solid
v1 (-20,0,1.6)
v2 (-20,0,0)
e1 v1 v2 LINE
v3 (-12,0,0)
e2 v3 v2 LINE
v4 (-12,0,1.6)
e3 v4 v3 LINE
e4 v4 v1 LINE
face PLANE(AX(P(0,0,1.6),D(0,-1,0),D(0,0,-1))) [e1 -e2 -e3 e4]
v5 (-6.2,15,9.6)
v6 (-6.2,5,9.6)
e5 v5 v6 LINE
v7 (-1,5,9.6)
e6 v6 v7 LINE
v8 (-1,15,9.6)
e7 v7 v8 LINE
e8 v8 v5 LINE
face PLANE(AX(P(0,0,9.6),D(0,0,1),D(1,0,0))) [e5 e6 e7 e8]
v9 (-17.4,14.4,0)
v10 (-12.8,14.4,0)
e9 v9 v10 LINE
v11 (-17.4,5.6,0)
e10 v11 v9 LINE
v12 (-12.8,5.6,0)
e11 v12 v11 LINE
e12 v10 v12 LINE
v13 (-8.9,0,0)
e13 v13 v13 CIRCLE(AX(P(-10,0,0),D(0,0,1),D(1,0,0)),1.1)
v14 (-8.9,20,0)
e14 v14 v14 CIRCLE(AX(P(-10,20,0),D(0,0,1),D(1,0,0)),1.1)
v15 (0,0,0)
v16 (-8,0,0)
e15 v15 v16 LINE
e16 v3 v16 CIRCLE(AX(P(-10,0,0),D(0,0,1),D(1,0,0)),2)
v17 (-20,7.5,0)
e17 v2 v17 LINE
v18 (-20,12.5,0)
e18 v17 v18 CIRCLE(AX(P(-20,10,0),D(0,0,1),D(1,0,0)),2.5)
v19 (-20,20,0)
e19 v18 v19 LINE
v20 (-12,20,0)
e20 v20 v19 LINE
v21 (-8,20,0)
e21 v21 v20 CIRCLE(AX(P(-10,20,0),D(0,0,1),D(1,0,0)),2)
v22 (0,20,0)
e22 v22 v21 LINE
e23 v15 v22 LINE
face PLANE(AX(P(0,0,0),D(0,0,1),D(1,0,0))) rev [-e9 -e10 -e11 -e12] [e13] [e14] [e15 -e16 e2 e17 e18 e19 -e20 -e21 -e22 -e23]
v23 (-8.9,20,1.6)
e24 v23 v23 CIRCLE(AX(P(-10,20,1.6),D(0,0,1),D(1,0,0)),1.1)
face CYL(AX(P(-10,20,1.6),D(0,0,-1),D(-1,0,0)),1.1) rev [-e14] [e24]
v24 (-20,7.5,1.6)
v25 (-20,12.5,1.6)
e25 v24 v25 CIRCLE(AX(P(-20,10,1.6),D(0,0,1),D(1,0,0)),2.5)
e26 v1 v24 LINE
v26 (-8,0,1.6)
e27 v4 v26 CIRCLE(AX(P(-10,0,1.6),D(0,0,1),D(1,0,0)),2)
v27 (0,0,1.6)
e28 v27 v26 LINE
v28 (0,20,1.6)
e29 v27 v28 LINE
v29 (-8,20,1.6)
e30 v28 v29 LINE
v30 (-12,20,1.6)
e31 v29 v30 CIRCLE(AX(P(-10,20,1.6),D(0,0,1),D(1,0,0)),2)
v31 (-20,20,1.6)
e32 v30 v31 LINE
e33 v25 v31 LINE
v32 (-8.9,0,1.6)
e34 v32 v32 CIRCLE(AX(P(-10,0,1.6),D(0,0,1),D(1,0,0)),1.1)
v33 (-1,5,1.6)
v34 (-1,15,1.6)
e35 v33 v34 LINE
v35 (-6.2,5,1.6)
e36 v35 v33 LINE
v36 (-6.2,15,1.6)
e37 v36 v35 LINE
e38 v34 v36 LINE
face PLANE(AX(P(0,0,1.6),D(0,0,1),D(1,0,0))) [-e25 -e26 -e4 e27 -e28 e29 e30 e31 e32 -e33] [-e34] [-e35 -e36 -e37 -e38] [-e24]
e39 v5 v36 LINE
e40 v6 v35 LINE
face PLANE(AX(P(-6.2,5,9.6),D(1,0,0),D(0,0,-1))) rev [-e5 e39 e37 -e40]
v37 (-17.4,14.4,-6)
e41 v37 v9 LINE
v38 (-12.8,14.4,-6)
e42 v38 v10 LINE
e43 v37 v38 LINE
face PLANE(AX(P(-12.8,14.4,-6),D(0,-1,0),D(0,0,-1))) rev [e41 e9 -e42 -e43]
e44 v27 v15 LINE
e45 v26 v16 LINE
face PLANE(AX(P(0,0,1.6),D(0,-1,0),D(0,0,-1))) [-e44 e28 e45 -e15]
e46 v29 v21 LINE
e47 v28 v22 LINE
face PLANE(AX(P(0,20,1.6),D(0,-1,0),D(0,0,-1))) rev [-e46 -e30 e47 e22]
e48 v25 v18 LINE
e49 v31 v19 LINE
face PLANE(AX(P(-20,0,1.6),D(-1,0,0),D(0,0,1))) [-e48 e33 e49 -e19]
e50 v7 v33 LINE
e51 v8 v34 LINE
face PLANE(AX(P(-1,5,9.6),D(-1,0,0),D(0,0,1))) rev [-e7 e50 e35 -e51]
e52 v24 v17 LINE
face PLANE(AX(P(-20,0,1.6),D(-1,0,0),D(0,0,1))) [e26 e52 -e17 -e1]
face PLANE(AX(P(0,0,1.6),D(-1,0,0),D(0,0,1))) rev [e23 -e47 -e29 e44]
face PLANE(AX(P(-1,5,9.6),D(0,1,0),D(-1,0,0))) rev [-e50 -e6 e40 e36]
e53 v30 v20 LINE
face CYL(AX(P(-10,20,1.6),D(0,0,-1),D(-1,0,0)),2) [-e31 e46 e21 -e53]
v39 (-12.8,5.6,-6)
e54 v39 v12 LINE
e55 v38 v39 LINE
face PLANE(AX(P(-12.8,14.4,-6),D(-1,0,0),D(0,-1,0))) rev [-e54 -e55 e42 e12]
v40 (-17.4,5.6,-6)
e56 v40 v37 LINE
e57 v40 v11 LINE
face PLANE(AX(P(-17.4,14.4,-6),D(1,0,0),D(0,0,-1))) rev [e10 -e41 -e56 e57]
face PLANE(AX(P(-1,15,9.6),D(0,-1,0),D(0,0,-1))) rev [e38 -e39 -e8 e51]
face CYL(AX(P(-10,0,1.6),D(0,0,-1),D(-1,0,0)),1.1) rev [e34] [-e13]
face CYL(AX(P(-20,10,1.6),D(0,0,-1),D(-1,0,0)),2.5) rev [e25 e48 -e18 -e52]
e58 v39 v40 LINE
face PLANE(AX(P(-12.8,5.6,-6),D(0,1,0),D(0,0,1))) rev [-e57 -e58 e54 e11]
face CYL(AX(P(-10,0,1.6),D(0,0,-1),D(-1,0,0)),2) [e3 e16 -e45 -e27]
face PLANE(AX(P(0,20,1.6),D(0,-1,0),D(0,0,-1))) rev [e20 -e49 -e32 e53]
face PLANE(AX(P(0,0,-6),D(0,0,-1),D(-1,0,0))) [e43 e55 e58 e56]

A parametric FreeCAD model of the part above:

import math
import FreeCAD as App
import Part
import Sketcher
from FreeCAD import Vector

doc = App.newDocument("Part")
body = doc.addObject("PartDesign::Body", "Body")

# Sketch on XY plane
sketch1 = body.newObject("Sketcher::SketchObject", "Sketch")
sketch1.AttachmentSupport = (doc.getObject("XY_Plane"), [""])
sketch1.MapMode = "FlatFace"
sketch1.addGeometry([
    Part.LineSegment(Vector(-8, 0, 0), Vector(0, 0, 0)),  # 0
    Part.LineSegment(Vector(0, 0, 0), Vector(0, 20, 0)),  # 1
    Part.LineSegment(Vector(0, 20, 0), Vector(-8, 20, 0)),  # 2
    Part.ArcOfCircle(Part.Circle(Vector(-10, 20, 0), Vector(0, 0, 1), 2), math.radians(0), math.radians(180)),  # 3
    Part.LineSegment(Vector(-12, 20, 0), Vector(-20, 20, 0)),  # 4
    Part.LineSegment(Vector(-20, 20, 0), Vector(-20, 12.5, 0)),  # 5
    Part.ArcOfCircle(Part.Circle(Vector(-20, 10, 0), Vector(0, 0, 1), 2.5), math.radians(-90), math.radians(90)),  # 6
    Part.LineSegment(Vector(-20, 7.5, 0), Vector(-20, 0, 0)),  # 7
    Part.LineSegment(Vector(-20, 0, 0), Vector(-12, 0, 0)),  # 8
    Part.ArcOfCircle(Part.Circle(Vector(-10, 0, 0), Vector(0, 0, 1), 2), math.radians(180), math.radians(360)),  # 9
    Part.Circle(Vector(-10, 0, 0), Vector(0, 0, 1), 1.1),  # 10
    Part.Circle(Vector(-10, 20, 0), Vector(0, 0, 1), 1.1),  # 11
], False)
sketch1.addConstraint([
    Sketcher.Constraint("Coincident", 0, 2, 1, 1),
    Sketcher.Constraint("Coincident", 1, 2, 2, 1),
    Sketcher.Constraint("Coincident", 2, 2, 3, 1),
    Sketcher.Constraint("Coincident", 3, 2, 4, 1),
    Sketcher.Constraint("Coincident", 4, 2, 5, 1),
    Sketcher.Constraint("Coincident", 5, 2, 6, 2),
    Sketcher.Constraint("Coincident", 6, 1, 7, 1),
    Sketcher.Constraint("Coincident", 7, 2, 8, 1),
    Sketcher.Constraint("Coincident", 8, 2, 9, 1),
    Sketcher.Constraint("Coincident", 9, 2, 0, 1),
    Sketcher.Constraint("Horizontal", 0),
    Sketcher.Constraint("Vertical", 1),
    Sketcher.Constraint("Horizontal", 2),
    Sketcher.Constraint("Horizontal", 4),
    Sketcher.Constraint("Vertical", 5),
    Sketcher.Constraint("Vertical", 7),
    Sketcher.Constraint("Horizontal", 8),
    Sketcher.Constraint("Coincident", 0, 2, -1, 1),
    Sketcher.Constraint("Coincident", 10, 3, 9, 3),
    Sketcher.Constraint("Coincident", 11, 3, 3, 3),
    Sketcher.Constraint("Equal", 3, 9),
    Sketcher.Constraint("Equal", 10, 11),
    Sketcher.Constraint("PointOnObject", 9, 3, -1),
    Sketcher.Constraint("PointOnObject", 7, 2, -1),
    Sketcher.Constraint("Horizontal", 11, 3, 1, 2),
    Sketcher.Constraint("Horizontal", 2, 2, 3, 2),
    Sketcher.Constraint("Vertical", 3, 3, 9, 3),
    Sketcher.Constraint("Vertical", 6, 3, 4, 2),
    Sketcher.Constraint("Vertical", 5, 2, 6, 1),
    Sketcher.Constraint("Equal", 2, 4),
    Sketcher.Constraint("Equal", 5, 7),
    Sketcher.Constraint("Radius", 3, 2.0),
    Sketcher.Constraint("Diameter", 10, 2.2),
    Sketcher.Constraint("Radius", 6, 2.5),
    Sketcher.Constraint("DistanceX", 0, 1, 0, 2, 8.0),
    Sketcher.Constraint("DistanceY", 1, 1, 1, 2, 20.0),
])
pad1 = body.newObject("PartDesign::Pad", "Pad")
pad1.Profile = sketch1
pad1.Length = 1.6

# Sketch on XY plane
sketch2 = body.newObject("Sketcher::SketchObject", "Sketch001")
sketch2.AttachmentSupport = (doc.getObject("XY_Plane"), [""])
sketch2.MapMode = "FlatFace"
sketch2.addGeometry([
    Part.LineSegment(Vector(-17.4, 5.6, 0), Vector(-17.4, 14.4, 0)),
    Part.LineSegment(Vector(-17.4, 14.4, 0), Vector(-12.8, 14.4, 0)),
    Part.LineSegment(Vector(-12.8, 14.4, 0), Vector(-12.8, 5.6, 0)),
    Part.LineSegment(Vector(-12.8, 5.6, 0), Vector(-17.4, 5.6, 0)),
], False)
sketch2.addConstraint([
    Sketcher.Constraint("Coincident", 0, 2, 1, 1),
    Sketcher.Constraint("Coincident", 1, 2, 2, 1),
    Sketcher.Constraint("Coincident", 2, 2, 3, 1),
    Sketcher.Constraint("Coincident", 3, 2, 0, 1),
    Sketcher.Constraint("Vertical", 0),
    Sketcher.Constraint("Horizontal", 1),
    Sketcher.Constraint("Vertical", 2),
    Sketcher.Constraint("Horizontal", 3),
    Sketcher.Constraint("DistanceX", 1, 1, 1, 2, 4.6),
    Sketcher.Constraint("DistanceY", 0, 1, 0, 2, 8.8),
    Sketcher.Constraint("DistanceX", 0, 2, -1, 1, 17.4),
    Sketcher.Constraint("DistanceY", -1, 1, 0, 2, 14.4),
])
pad2 = body.newObject("PartDesign::Pad", "Pad001")
pad2.Profile = sketch2
pad2.Length = 6
pad2.Reversed = True

# Sketch on XY plane
sketch3 = body.newObject("Sketcher::SketchObject", "Sketch002")
sketch3.AttachmentSupport = (doc.getObject("XY_Plane"), [""])
sketch3.MapMode = "FlatFace"
sketch3.AttachmentOffset = App.Placement(Vector(0, 0, 1.6), App.Rotation())
sketch3.addGeometry([
    Part.LineSegment(Vector(-6.2, 15, 0), Vector(-6.2, 5, 0)),
    Part.LineSegment(Vector(-6.2, 5, 0), Vector(-1, 5, 0)),
    Part.LineSegment(Vector(-1, 5, 0), Vector(-1, 15, 0)),
    Part.LineSegment(Vector(-1, 15, 0), Vector(-6.2, 15, 0)),
], False)
sketch3.addConstraint([
    Sketcher.Constraint("Coincident", 0, 2, 1, 1),
    Sketcher.Constraint("Coincident", 1, 2, 2, 1),
    Sketcher.Constraint("Coincident", 2, 2, 3, 1),
    Sketcher.Constraint("Coincident", 3, 2, 0, 1),
    Sketcher.Constraint("Vertical", 0),
    Sketcher.Constraint("Horizontal", 1),
    Sketcher.Constraint("Vertical", 2),
    Sketcher.Constraint("Horizontal", 3),
    Sketcher.Constraint("DistanceY", 0, 2, 0, 1, 10.0),
    Sketcher.Constraint("DistanceX", 1, 1, 1, 2, 5.2),
    Sketcher.Constraint("DistanceY", -1, 1, 0, 2, 5.0),
    Sketcher.Constraint("DistanceX", 1, 2, -1, 1, 1.0),
])
pad3 = body.newObject("PartDesign::Pad", "Pad002")
pad3.Profile = sketch3
pad3.Length = 8

doc.recompute()
